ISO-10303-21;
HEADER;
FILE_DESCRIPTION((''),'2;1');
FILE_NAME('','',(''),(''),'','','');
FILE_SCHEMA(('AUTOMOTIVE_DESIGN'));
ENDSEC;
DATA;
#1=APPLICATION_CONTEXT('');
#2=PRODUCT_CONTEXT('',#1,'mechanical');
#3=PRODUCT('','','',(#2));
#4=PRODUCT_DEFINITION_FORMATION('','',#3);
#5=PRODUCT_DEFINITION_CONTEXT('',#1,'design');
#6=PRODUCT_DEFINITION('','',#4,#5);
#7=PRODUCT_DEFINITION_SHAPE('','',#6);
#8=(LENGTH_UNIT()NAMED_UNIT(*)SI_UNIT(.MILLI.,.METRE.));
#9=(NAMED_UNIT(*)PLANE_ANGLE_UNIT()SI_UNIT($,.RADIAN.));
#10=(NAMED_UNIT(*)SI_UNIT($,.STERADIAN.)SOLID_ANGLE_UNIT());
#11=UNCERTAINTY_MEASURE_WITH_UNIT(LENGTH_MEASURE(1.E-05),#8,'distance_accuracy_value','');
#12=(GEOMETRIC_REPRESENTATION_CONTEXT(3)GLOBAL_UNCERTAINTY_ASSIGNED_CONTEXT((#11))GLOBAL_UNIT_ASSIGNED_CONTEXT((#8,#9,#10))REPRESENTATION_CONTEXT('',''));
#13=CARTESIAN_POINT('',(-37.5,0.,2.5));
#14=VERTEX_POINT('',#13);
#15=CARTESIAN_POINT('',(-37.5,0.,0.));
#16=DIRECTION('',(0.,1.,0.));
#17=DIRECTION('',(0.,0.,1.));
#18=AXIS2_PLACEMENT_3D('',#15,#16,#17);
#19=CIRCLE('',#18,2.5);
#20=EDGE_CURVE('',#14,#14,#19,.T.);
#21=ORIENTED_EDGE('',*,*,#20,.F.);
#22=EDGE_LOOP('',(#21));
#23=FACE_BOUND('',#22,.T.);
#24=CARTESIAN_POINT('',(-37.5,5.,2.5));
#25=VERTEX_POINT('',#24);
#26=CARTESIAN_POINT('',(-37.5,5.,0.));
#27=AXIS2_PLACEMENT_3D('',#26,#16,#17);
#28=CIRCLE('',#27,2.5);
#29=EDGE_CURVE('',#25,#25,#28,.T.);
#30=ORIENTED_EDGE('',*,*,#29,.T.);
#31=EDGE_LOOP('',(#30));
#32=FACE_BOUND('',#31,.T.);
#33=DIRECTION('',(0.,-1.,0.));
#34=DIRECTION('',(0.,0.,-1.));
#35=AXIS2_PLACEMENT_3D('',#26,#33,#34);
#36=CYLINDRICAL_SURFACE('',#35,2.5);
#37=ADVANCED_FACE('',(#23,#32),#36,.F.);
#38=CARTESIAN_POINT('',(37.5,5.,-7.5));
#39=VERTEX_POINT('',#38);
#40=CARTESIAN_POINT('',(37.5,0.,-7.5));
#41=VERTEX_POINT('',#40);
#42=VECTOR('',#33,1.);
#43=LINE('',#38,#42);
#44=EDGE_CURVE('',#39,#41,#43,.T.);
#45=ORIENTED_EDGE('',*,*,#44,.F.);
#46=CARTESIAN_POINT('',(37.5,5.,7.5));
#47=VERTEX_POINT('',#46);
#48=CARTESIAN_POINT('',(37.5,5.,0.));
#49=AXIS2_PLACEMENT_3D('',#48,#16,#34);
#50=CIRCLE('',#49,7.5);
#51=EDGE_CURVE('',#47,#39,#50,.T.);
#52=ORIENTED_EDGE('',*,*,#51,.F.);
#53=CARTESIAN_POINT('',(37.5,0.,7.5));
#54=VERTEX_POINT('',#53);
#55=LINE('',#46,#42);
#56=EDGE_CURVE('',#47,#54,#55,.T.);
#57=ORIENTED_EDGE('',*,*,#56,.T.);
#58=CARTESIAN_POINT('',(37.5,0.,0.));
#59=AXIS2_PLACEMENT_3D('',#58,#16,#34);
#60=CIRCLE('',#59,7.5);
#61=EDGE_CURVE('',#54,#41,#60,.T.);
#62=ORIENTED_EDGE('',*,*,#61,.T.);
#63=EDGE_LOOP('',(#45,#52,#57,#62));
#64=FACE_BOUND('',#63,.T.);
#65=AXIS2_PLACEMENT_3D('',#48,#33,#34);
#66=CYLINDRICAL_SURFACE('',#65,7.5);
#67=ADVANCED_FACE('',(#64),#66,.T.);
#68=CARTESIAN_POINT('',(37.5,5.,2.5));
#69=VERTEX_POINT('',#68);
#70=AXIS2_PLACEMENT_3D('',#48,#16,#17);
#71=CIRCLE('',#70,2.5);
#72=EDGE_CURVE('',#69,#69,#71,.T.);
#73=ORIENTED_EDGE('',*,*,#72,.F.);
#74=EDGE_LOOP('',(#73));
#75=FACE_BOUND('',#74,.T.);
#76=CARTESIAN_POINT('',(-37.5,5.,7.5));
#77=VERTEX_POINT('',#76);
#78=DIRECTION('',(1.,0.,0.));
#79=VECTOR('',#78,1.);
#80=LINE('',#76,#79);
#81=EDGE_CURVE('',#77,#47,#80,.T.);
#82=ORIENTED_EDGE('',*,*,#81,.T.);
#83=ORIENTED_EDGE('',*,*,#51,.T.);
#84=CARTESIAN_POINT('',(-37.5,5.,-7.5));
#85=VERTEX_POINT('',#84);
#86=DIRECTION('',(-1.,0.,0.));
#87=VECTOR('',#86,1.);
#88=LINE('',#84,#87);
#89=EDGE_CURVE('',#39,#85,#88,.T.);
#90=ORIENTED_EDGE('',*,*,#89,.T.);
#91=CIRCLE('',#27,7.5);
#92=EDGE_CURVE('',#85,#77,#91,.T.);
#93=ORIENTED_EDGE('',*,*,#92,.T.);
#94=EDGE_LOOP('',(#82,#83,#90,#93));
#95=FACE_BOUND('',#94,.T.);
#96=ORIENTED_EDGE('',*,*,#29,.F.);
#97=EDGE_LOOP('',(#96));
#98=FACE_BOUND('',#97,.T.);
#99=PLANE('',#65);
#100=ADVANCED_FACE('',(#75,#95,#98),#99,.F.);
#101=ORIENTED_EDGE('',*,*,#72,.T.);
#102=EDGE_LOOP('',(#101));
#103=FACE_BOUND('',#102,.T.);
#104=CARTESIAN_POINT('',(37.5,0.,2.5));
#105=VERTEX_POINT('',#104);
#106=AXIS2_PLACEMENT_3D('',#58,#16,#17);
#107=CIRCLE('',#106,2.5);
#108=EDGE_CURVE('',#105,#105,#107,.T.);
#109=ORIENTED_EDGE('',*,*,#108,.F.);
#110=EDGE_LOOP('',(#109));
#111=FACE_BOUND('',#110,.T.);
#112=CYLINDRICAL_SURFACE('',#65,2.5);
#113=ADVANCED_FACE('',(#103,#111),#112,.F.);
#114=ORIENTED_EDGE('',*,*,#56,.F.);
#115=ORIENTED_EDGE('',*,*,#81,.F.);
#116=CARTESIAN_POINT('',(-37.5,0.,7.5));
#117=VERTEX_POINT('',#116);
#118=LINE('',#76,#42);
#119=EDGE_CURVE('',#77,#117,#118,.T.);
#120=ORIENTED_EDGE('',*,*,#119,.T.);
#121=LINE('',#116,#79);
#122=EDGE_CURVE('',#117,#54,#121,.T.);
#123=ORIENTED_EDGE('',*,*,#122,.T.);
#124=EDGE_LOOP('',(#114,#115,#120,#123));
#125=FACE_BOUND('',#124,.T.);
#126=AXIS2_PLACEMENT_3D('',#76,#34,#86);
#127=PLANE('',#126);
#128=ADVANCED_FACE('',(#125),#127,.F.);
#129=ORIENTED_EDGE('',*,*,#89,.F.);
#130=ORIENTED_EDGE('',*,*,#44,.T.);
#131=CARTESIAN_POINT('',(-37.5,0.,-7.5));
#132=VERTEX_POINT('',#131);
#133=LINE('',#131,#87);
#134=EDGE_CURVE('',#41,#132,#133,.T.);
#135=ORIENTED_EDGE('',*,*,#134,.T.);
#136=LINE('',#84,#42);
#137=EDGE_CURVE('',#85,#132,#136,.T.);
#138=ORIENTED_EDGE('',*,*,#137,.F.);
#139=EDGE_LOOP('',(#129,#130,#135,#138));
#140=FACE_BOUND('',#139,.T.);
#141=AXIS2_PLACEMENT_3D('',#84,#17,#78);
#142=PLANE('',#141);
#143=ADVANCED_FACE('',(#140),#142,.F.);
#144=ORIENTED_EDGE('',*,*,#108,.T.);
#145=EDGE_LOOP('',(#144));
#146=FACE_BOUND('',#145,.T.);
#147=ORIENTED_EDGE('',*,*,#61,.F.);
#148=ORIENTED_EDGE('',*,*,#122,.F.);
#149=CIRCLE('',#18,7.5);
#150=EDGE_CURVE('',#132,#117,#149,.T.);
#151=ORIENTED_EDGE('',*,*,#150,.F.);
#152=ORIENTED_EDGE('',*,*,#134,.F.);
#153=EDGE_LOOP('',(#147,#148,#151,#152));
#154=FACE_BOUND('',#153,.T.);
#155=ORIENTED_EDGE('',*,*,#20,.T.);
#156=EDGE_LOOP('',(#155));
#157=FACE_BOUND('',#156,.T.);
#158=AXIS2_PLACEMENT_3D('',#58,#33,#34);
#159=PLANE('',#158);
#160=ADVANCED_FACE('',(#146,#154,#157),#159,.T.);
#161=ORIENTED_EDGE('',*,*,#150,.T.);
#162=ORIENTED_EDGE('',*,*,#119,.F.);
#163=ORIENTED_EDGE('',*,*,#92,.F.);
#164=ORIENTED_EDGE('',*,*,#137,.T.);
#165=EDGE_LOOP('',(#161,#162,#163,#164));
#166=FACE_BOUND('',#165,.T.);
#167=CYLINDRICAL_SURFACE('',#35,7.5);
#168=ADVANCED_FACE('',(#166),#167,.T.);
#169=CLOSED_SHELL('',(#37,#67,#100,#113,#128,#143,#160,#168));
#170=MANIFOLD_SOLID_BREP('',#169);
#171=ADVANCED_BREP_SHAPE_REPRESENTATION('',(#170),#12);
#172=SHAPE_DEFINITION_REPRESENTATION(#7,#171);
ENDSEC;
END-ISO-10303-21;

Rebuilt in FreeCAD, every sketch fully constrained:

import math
import FreeCAD as App
import Part
import Sketcher
Q = App.Units.Quantity

doc = App.newDocument("Part")
body = doc.addObject("PartDesign::Body", "Body")

sketch1 = doc.addObject("Sketcher::SketchObject", "Sketch")
body.addObject(sketch1)
sketch1.AttachmentSupport = (doc.XZ_Plane, [""])
sketch1.MapMode = "FlatFace"
sketch1.addGeometry(Part.LineSegment(App.Vector(37.5, -7.5, 0), App.Vector(-37.5, -7.5, 0)), False)
sketch1.addGeometry(Part.ArcOfCircle(Part.Circle(App.Vector(-37.5, 0, 0), App.Vector(0, 0, 1), 7.5), math.radians(90), math.radians(270)), False)
sketch1.addGeometry(Part.LineSegment(App.Vector(-37.5, 7.5, 0), App.Vector(37.5, 7.5, 0)), False)
sketch1.addGeometry(Part.ArcOfCircle(Part.Circle(App.Vector(37.5, 0, 0), App.Vector(0, 0, 1), 7.5), math.radians(-90), math.radians(90)), False)
sketch1.addGeometry(Part.Circle(App.Vector(37.5, 0, 0), App.Vector(0, 0, 1), 2.5), False)
sketch1.addGeometry(Part.Circle(App.Vector(-37.5, 0, 0), App.Vector(0, 0, 1), 2.5), False)
sketch1.addConstraint(Sketcher.Constraint("Tangent", 0, 2, 1, 2))
sketch1.addConstraint(Sketcher.Constraint("Tangent", 1, 1, 2, 1))
sketch1.addConstraint(Sketcher.Constraint("Tangent", 2, 2, 3, 2))
sketch1.addConstraint(Sketcher.Constraint("Tangent", 3, 1, 0, 1))
sketch1.addConstraint(Sketcher.Constraint("Horizontal", 0))
sketch1.addConstraint(Sketcher.Constraint("Horizontal", 2))
sketch1.addConstraint(Sketcher.Constraint("Coincident", 4, 3, 3, 3))
sketch1.addConstraint(Sketcher.Constraint("Coincident", 5, 3, 1, 3))
sketch1.addConstraint(Sketcher.Constraint("Equal", 4, 5))
sketch1.addConstraint(Sketcher.Constraint("Symmetric", 1, 3, 3, 3, -1, 1))
sketch1.addConstraint(Sketcher.Constraint("Diameter", 4, Q("5 mm")))
sketch1.addConstraint(Sketcher.Constraint("Radius", 1, Q("7.5 mm")))
sketch1.addConstraint(Sketcher.Constraint("DistanceX", 0, 2, 0, 1, Q("75 mm")))
pad1 = doc.addObject("PartDesign::Pad", "Pad")
body.addObject(pad1)
pad1.Profile = sketch1
pad1.Length = 5
pad1.Reversed = True

doc.recompute()
